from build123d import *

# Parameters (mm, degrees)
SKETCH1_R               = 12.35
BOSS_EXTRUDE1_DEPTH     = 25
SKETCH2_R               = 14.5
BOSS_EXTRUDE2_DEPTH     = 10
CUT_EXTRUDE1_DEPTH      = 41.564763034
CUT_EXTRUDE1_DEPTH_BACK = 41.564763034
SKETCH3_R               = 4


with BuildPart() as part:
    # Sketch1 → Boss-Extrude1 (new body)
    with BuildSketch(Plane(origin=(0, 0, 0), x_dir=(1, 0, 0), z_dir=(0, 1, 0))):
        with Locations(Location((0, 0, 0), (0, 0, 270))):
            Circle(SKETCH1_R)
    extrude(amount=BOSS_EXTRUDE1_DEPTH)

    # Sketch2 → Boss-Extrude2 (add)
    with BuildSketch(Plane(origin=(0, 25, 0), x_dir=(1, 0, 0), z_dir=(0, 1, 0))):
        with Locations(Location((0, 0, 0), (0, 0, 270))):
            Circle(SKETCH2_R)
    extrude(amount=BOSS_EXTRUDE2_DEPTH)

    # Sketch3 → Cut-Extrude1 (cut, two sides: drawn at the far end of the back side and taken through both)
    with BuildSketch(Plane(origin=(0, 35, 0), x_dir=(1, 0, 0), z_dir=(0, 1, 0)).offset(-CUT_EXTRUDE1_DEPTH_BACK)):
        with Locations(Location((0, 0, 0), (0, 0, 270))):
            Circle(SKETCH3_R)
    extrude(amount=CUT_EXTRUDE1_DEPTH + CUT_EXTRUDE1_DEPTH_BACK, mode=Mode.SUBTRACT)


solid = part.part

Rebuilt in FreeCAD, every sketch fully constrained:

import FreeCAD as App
import Part
import Sketcher
from FreeCAD import Vector

doc = App.newDocument("Part")
params = doc.addObject("Spreadsheet::Sheet", "Params")
for row, (alias, value) in enumerate([
    ("sketch1_diameter", "24.7 mm"),
    ("pad1_length", "25 mm"),
    ("sketch2_diameter", "29 mm"),
    ("pad2_length", "10 mm"),
    ("sketch3_diameter", "8 mm"),
], start=1):
    params.set(f"A{row}", alias)
    params.set(f"B{row}", "=" + value)
    params.setAlias(f"B{row}", alias)

body = doc.addObject("PartDesign::Body", "Body")

sketch1 = doc.addObject("Sketcher::SketchObject", "Sketch")
body.addObject(sketch1)
sketch1.AttachmentSupport = (doc.XZ_Plane, [""])
sketch1.MapMode = "FlatFace"
sketch1.addGeometry(Part.Circle(Vector(0, 0, 0), Vector(0, 0, 1), 12), False)
sketch1.addConstraint([
    Sketcher.Constraint("Coincident", 0, 3, -1, 1),
    Sketcher.Constraint("Diameter", 0, 24.7),
])
sketch1.setExpression("Constraints[1]", "Params.sketch1_diameter")
pad1 = doc.addObject("PartDesign::Pad", "Pad")
body.addObject(pad1)
pad1.Profile = sketch1
pad1.setExpression("Length", "Params.pad1_length")
pad1.Reversed = True

sketch2 = doc.addObject("Sketcher::SketchObject", "Sketch001")
body.addObject(sketch2)
sketch2.AttachmentSupport = (doc.XZ_Plane, [""])
sketch2.MapMode = "FlatFace"
sketch2.AttachmentOffset = App.Placement(Vector(0, 0, -25), App.Rotation())
sketch2.addGeometry(Part.Circle(Vector(0, 0, 0), Vector(0, 0, 1), 14), False)
sketch2.addConstraint([
    Sketcher.Constraint("Coincident", 0, 3, -1, 1),
    Sketcher.Constraint("Diameter", 0, 29.0),
])
sketch2.setExpression("Constraints[1]", "Params.sketch2_diameter")
pad2 = doc.addObject("PartDesign::Pad", "Pad001")
body.addObject(pad2)
pad2.Profile = sketch2
pad2.setExpression("Length", "Params.pad2_length")
pad2.Reversed = True

sketch3 = doc.addObject("Sketcher::SketchObject", "Sketch002")
body.addObject(sketch3)
sketch3.AttachmentSupport = (doc.XZ_Plane, [""])
sketch3.MapMode = "FlatFace"
sketch3.AttachmentOffset = App.Placement(Vector(0, 0, -35), App.Rotation())
sketch3.addGeometry(Part.Circle(Vector(0, 0, 0), Vector(0, 0, 1), 4), False)
sketch3.addConstraint([
    Sketcher.Constraint("Coincident", 0, 3, -1, 1),
    Sketcher.Constraint("Diameter", 0, 8.0),
])
sketch3.setExpression("Constraints[1]", "Params.sketch3_diameter")
pocket1 = doc.addObject("PartDesign::Pocket", "Pocket")
body.addObject(pocket1)
pocket1.Profile = sketch3
pocket1.Type = "ThroughAll"
pocket1.Midplane = True

doc.recompute()
